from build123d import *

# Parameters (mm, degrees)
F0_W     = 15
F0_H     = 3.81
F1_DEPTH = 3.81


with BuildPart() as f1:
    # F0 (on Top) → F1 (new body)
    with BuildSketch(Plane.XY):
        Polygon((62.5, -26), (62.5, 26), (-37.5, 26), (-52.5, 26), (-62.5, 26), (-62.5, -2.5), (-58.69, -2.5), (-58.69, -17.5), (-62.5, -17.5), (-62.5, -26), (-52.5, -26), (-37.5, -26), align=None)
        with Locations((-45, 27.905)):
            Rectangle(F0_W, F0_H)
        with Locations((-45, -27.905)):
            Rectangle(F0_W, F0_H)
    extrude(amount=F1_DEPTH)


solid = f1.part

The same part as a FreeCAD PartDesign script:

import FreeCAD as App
import Part
import Sketcher

V = App.Vector
Q = App.Units.Quantity


def add_polygon(sketch, points):
    """Adds a closed chain of lines whose ends are joined by coincident constraints."""
    first, n = sketch.GeometryCount, len(points)
    for a, b in zip(points, points[1:] + points[:1]):
        sketch.addGeometry(Part.LineSegment(App.Vector(*a, 0), App.Vector(*b, 0)), False)
    for i in range(n):
        sketch.addConstraint(Sketcher.Constraint("Coincident", first + i, 2, first + (i + 1) % n, 1))

doc = App.newDocument("Part")
body = doc.addObject("PartDesign::Body", "Body")

# Sketch on XY plane
sketch1 = doc.addObject("Sketcher::SketchObject", "Sketch")
body.addObject(sketch1)
sketch1.AttachmentSupport = (doc.XY_Plane, [""])
sketch1.MapMode = "FlatFace"
add_polygon(sketch1, [(62.5, -26), (62.5, 26), (-37.5, 26), (-37.5, 29.81), (-52.5, 29.81), (-52.5, 26), (-62.5, 26), (-62.5, -2.5), (-58.69, -2.5), (-58.69, -17.5), (-62.5, -17.5), (-62.5, -26), (-52.5, -26), (-52.5, -29.81), (-37.5, -29.81), (-37.5, -26)])  # lines 0-15
sketch1.addConstraint([
    Sketcher.Constraint("Vertical", 0),
    Sketcher.Constraint("Horizontal", 1),
    Sketcher.Constraint("Vertical", 2),
    Sketcher.Constraint("Horizontal", 3),
    Sketcher.Constraint("Vertical", 4),
    Sketcher.Constraint("Horizontal", 5),
    Sketcher.Constraint("Vertical", 6),
    Sketcher.Constraint("Horizontal", 7),
    Sketcher.Constraint("Vertical", 8),
    Sketcher.Constraint("Horizontal", 9),
    Sketcher.Constraint("Vertical", 10),
    Sketcher.Constraint("Horizontal", 11),
    Sketcher.Constraint("Vertical", 12),
    Sketcher.Constraint("Horizontal", 13),
    Sketcher.Constraint("Vertical", 14),
    Sketcher.Constraint("Horizontal", 15),
    Sketcher.Constraint("Symmetric", 0, 2, 10, 2, -1, 1),
    Sketcher.Constraint("Symmetric", 5, 2, 15, 2, -1, 1),
    Sketcher.Constraint("Symmetric", 4, 2, 11, 2, -1),
    Sketcher.Constraint("Symmetric", 2, 2, 13, 2, -1),
    Sketcher.Constraint("Equal", 9, 2),
    Sketcher.Constraint("Equal", 13, 8),
    Sketcher.Constraint("DistanceX", 1, 2, 1, 1, Q("100 mm")),
    Sketcher.Constraint("DistanceX", 3, 2, 3, 1, Q("15 mm")),
    Sketcher.Constraint("DistanceX", 5, 2, 5, 1, Q("10 mm")),
    Sketcher.Constraint("DistanceY", 0, 1, 0, 2, Q("52 mm")),
    Sketcher.Constraint("DistanceY", 6, 2, 6, 1, Q("28.5 mm")),
    Sketcher.Constraint("DistanceX", 7, 1, 7, 2, Q("3.81 mm")),
])
pad1 = doc.addObject("PartDesign::Pad", "Pad")
body.addObject(pad1)
pad1.Profile = sketch1
pad1.Length = 3.81

doc.recompute()
